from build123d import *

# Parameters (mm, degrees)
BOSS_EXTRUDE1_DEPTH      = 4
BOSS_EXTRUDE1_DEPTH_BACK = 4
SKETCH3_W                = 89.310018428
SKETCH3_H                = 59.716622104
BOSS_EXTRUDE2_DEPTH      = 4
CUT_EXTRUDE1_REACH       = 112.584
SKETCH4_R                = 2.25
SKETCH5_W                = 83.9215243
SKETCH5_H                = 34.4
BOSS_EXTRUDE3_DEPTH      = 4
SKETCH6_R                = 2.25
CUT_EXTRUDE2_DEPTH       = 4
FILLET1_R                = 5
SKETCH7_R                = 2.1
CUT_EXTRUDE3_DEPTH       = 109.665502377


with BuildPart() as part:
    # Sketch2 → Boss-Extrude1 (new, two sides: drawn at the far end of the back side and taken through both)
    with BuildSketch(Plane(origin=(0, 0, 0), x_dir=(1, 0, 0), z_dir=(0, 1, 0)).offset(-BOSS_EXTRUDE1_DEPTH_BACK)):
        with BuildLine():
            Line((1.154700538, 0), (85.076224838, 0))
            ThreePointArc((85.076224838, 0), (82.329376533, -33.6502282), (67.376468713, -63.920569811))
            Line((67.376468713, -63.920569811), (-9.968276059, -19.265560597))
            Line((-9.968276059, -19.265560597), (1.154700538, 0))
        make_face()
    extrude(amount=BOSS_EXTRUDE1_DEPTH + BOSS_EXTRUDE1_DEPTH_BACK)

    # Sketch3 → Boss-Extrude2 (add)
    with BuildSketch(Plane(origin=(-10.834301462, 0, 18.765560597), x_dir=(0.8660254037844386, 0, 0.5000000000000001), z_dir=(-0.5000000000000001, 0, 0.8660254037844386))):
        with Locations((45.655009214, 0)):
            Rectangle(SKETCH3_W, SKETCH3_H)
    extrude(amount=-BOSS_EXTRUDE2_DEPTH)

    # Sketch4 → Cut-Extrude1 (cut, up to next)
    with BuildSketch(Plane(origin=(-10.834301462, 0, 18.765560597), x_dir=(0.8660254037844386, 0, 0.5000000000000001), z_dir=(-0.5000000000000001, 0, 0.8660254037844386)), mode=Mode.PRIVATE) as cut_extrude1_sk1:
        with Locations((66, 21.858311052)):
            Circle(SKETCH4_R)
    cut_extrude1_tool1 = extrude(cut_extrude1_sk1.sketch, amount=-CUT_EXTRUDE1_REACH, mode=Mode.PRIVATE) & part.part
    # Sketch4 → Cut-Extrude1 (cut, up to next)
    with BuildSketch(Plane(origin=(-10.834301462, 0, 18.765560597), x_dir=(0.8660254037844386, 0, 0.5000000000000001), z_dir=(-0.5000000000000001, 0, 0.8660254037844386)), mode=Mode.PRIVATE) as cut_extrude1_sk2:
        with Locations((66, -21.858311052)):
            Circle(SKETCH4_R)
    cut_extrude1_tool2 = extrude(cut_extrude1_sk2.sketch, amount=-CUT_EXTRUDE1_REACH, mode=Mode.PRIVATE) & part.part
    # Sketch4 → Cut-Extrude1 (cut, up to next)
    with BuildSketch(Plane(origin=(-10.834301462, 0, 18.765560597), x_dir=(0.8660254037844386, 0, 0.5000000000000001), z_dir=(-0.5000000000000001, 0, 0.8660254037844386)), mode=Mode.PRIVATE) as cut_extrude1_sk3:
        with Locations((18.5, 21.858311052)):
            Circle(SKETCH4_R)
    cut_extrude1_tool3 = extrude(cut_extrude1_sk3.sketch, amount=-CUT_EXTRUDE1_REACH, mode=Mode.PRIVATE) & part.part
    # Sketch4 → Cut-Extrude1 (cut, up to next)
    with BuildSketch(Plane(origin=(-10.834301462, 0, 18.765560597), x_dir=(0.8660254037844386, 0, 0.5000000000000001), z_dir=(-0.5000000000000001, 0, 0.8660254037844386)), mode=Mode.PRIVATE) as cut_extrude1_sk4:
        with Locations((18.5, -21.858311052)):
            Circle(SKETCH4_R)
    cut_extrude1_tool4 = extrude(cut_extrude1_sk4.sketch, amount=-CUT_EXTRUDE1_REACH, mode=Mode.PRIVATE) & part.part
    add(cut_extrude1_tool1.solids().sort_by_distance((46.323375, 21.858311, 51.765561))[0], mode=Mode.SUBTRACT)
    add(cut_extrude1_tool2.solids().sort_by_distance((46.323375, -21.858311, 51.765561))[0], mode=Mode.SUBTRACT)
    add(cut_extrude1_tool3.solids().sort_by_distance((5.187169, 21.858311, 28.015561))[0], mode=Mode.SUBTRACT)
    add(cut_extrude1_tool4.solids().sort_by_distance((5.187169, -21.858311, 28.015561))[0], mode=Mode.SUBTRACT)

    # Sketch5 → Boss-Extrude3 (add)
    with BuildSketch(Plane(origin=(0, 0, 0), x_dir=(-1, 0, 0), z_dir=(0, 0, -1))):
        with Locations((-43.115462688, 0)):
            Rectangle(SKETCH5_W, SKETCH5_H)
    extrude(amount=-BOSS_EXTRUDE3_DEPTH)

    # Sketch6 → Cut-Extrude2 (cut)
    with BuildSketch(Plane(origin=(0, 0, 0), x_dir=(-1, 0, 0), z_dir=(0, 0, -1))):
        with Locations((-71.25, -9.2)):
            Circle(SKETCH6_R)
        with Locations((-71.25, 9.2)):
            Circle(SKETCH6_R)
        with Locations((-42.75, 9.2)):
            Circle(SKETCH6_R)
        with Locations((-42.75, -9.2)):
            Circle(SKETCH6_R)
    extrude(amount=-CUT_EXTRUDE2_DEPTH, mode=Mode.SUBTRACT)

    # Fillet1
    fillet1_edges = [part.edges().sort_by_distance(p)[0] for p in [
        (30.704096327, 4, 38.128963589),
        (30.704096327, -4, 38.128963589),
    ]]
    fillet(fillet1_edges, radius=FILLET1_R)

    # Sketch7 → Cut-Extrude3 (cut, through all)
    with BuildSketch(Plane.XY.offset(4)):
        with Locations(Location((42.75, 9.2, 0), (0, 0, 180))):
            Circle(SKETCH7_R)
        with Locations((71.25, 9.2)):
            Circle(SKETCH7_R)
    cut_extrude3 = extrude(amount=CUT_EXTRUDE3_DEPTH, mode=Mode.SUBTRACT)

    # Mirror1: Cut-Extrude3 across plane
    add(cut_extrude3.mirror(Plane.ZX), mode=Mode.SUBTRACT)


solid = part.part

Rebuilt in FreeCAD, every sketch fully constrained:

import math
import FreeCAD as App
import Part
import Sketcher
from FreeCAD import Vector
Q = App.Units.Quantity


def edges_at(feature, points):
    """Names of the edges that pass closest to the given points."""
    edges = feature.Shape.Edges
    near = lambda p: min(range(len(edges)), key=lambda i: edges[i].distToShape(Part.Vertex(*p))[0])
    return sorted({f"Edge{near(p) + 1}" for p in points})


def add_polygon(sketch, points):
    """Adds a closed chain of lines whose ends are joined by coincident constraints."""
    first, n = sketch.GeometryCount, len(points)
    for a, b in zip(points, points[1:] + points[:1]):
        sketch.addGeometry(Part.LineSegment(App.Vector(*a, 0), App.Vector(*b, 0)), False)
    for i in range(n):
        sketch.addConstraint(Sketcher.Constraint("Coincident", first + i, 2, first + (i + 1) % n, 1))

doc = App.newDocument("Part")
params = doc.addObject("Spreadsheet::Sheet", "Params")
for row, (alias, value) in enumerate([
    ("sketch1_radius", "90 mm"),
    ("pad1_length", "4 mm"),
    ("pad1_length2", "4 mm"),
    ("pad2_length", "4 mm"),
    ("sketch3_diameter", "4.5 mm"),
    ("sketch4_diameter", "4.5 mm"),
    ("sketch5_diameter", "4.5 mm"),
    ("sketch6_diameter", "4.5 mm"),
    ("sketch7_height", "34.4 mm"),
    ("pad3_length", "4 mm"),
    ("sketch8_diameter", "4.5 mm"),
    ("pocket5_length", "4 mm"),
    ("fillet_radius", "5 mm"),
    ("sketch9_diameter", "4.2 mm"),
], start=1):
    params.set(f"A{row}", alias)
    params.set(f"B{row}", "=" + value)
    params.setAlias(f"B{row}", alias)

body = doc.addObject("PartDesign::Body", "Body")

# Sketch on XZ plane
sketch1 = body.newObject("Sketcher::SketchObject", "Sketch")
sketch1.AttachmentSupport = (doc.getObject("XZ_Plane"), [""])
sketch1.MapMode = "FlatFace"
sketch1.addGeometry(Part.LineSegment(Vector(85, 0, 0), Vector(1, 0, 0)), False)
sketch1.addGeometry(Part.LineSegment(Vector(1, 0, 0), Vector(-10, 19, 0)), False)
sketch1.addGeometry(Part.LineSegment(Vector(-10, 19, 0), Vector(67, 64, 0)), False)
sketch1.addGeometry(Part.ArcOfCircle(Part.Circle(Vector(-4, 10, 0), Vector(0, 0, 1), 90), math.radians(-6), math.radians(37)), False)
sketch1.addConstraint(Sketcher.Constraint("Coincident", 0, 2, 1, 1))
sketch1.addConstraint(Sketcher.Constraint("Coincident", 1, 2, 2, 1))
sketch1.addConstraint(Sketcher.Constraint("Coincident", 2, 2, 3, 2))
sketch1.addConstraint(Sketcher.Constraint("Coincident", 3, 1, 0, 1))
sketch1.addConstraint(Sketcher.Constraint("Horizontal", 0))
sketch1.addConstraint(Sketcher.Constraint("PointOnObject", 0, 2, -1))
sketch1.addConstraint(Sketcher.Constraint("Perpendicular", 1, 2))
sketch1.addConstraint(Sketcher.Constraint("Radius", 3, Q("90 mm")))
sketch1.addConstraint(Sketcher.Constraint("Angle", 1, Q("120 deg")))
sketch1.addConstraint(Sketcher.Constraint("DistanceX", -1, 1, 0, 2, Q("1.154701 mm")))
sketch1.addConstraint(Sketcher.Constraint("DistanceX", 1, 2, 3, 1, Q("95.044501 mm")))
sketch1.addConstraint(Sketcher.Constraint("Distance", 2, Q("89.310018 mm")))
sketch1.addConstraint(Sketcher.Constraint("DistanceX", 0, 2, 0, 1, Q("83.921524 mm")))
sketch1.setExpression("Constraints[7]", "Params.sketch1_radius")
pad1 = body.newObject("PartDesign::Pad", "Pad")
pad1.Profile = sketch1
pad1.Type = "TwoLengths"
pad1.setExpression("Length", "Params.pad1_length")
pad1.setExpression("Length2", "Params.pad1_length2")
pad1.Reversed = True

# Sketch on an angled plane
sketch2 = body.newObject("Sketcher::SketchObject", "Sketch001")
sketch2.Placement = App.Placement(Vector(-10.834301, 0, 18.765561), App.Rotation(Vector(0.866025404, 0, 0.5), Vector(0, 1, 0), Vector(-0.5, 0, 0.866025404), "ZXY"))
add_polygon(sketch2, [(1, 30), (1, -30), (90, -30), (90, 30)])  # lines 0-3
sketch2.addConstraint(Sketcher.Constraint("Vertical", 0))
sketch2.addConstraint(Sketcher.Constraint("Horizontal", 1))
sketch2.addConstraint(Sketcher.Constraint("Vertical", 2))
sketch2.addConstraint(Sketcher.Constraint("Horizontal", 3))
sketch2.addConstraint(Sketcher.Constraint("DistanceX", -1, 1, 0, 2, Q("1 mm")))
sketch2.addConstraint(Sketcher.Constraint("DistanceX", 1, 1, 1, 2, Q("89.310018 mm")))
sketch2.addConstraint(Sketcher.Constraint("DistanceY", 0, 2, 0, 1, Q("59.716622 mm")))
sketch2.addConstraint(Sketcher.Constraint("DistanceY", 0, 2, -1, 1, Q("29.858311 mm")))
pad2 = body.newObject("PartDesign::Pad", "Pad001")
pad2.Profile = sketch2
pad2.setExpression("Length", "Params.pad2_length")
pad2.Reversed = True

# Sketch on an angled plane
sketch3 = body.newObject("Sketcher::SketchObject", "Sketch002")
sketch3.Placement = App.Placement(Vector(-10.834301, 0, 18.765561), App.Rotation(Vector(0.866025404, 0, 0.5), Vector(0, 1, 0), Vector(-0.5, 0, 0.866025404), "ZXY"))
sketch3.addGeometry(Part.Circle(Vector(66, 21.9, 0), Vector(0, 0, 1), 2.2), False)
sketch3.addConstraint(Sketcher.Constraint("Diameter", 0, Q("4.5 mm")))
sketch3.addConstraint(Sketcher.Constraint("DistanceX", -1, 1, 0, 3, Q("66 mm")))
sketch3.addConstraint(Sketcher.Constraint("DistanceY", -1, 1, 0, 3, Q("21.858311 mm")))
sketch3.setExpression("Constraints[0]", "Params.sketch3_diameter")
pocket1 = body.newObject("PartDesign::Pocket", "Pocket")
pocket1.Profile = sketch3
pocket1.Type = "UpToFirst"

# Sketch on an angled plane
sketch4 = body.newObject("Sketcher::SketchObject", "Sketch003")
sketch4.Placement = App.Placement(Vector(-10.834301, 0, 18.765561), App.Rotation(Vector(0.866025404, 0, 0.5), Vector(0, 1, 0), Vector(-0.5, 0, 0.866025404), "ZXY"))
sketch4.addGeometry(Part.Circle(Vector(66, -21.9, 0), Vector(0, 0, 1), 2.2), False)
sketch4.addConstraint(Sketcher.Constraint("Diameter", 0, Q("4.5 mm")))
sketch4.addConstraint(Sketcher.Constraint("DistanceX", -1, 1, 0, 3, Q("66 mm")))
sketch4.addConstraint(Sketcher.Constraint("DistanceY", 0, 3, -1, 1, Q("21.858311 mm")))
sketch4.setExpression("Constraints[0]", "Params.sketch4_diameter")
pocket2 = body.newObject("PartDesign::Pocket", "Pocket001")
pocket2.Profile = sketch4
pocket2.Type = "UpToFirst"

# Sketch on an angled plane
sketch5 = body.newObject("Sketcher::SketchObject", "Sketch004")
sketch5.Placement = App.Placement(Vector(-10.834301, 0, 18.765561), App.Rotation(Vector(0.866025404, 0, 0.5), Vector(0, 1, 0), Vector(-0.5, 0, 0.866025404), "ZXY"))
sketch5.addGeometry(Part.Circle(Vector(18.5, 21.9, 0), Vector(0, 0, 1), 2.2), False)
sketch5.addConstraint(Sketcher.Constraint("Diameter", 0, Q("4.5 mm")))
sketch5.addConstraint(Sketcher.Constraint("DistanceX", -1, 1, 0, 3, Q("18.5 mm")))
sketch5.addConstraint(Sketcher.Constraint("DistanceY", -1, 1, 0, 3, Q("21.858311 mm")))
sketch5.setExpression("Constraints[0]", "Params.sketch5_diameter")
pocket3 = body.newObject("PartDesign::Pocket", "Pocket002")
pocket3.Profile = sketch5
pocket3.Type = "UpToFirst"

# Sketch on an angled plane
sketch6 = body.newObject("Sketcher::SketchObject", "Sketch005")
sketch6.Placement = App.Placement(Vector(-10.834301, 0, 18.765561), App.Rotation(Vector(0.866025404, 0, 0.5), Vector(0, 1, 0), Vector(-0.5, 0, 0.866025404), "ZXY"))
sketch6.addGeometry(Part.Circle(Vector(18.5, -21.9, 0), Vector(0, 0, 1), 2.2), False)
sketch6.addConstraint(Sketcher.Constraint("Diameter", 0, Q("4.5 mm")))
sketch6.addConstraint(Sketcher.Constraint("DistanceX", -1, 1, 0, 3, Q("18.5 mm")))
sketch6.addConstraint(Sketcher.Constraint("DistanceY", 0, 3, -1, 1, Q("21.858311 mm")))
sketch6.setExpression("Constraints[0]", "Params.sketch6_diameter")
pocket4 = body.newObject("PartDesign::Pocket", "Pocket003")
pocket4.Profile = sketch6
pocket4.Type = "UpToFirst"

# Sketch on XY plane
sketch7 = body.newObject("Sketcher::SketchObject", "Sketch006")
sketch7.AttachmentSupport = (doc.getObject("XY_Plane"), [""])
sketch7.MapMode = "FlatFace"
add_polygon(sketch7, [(85, 17), (85, -17), (1, -17), (1, 17)])  # lines 0-3
sketch7.addConstraint(Sketcher.Constraint("Vertical", 0))
sketch7.addConstraint(Sketcher.Constraint("Horizontal", 1))
sketch7.addConstraint(Sketcher.Constraint("Vertical", 2))
sketch7.addConstraint(Sketcher.Constraint("Horizontal", 3))
sketch7.addConstraint(Sketcher.Constraint("DistanceY", 0, 2, 0, 1, Q("34.4 mm")))
sketch7.addConstraint(Sketcher.Constraint("DistanceY", 0, 2, -1, 1, Q("17.2 mm")))
sketch7.addConstraint(Sketcher.Constraint("DistanceX", -1, 1, 1, 2, Q("1.154701 mm")))
sketch7.addConstraint(Sketcher.Constraint("DistanceX", 1, 2, 1, 1, Q("83.921524 mm")))
sketch7.setExpression("Constraints[8]", "Params.sketch7_height")
pad3 = body.newObject("PartDesign::Pad", "Pad002")
pad3.Profile = sketch7
pad3.setExpression("Length", "Params.pad3_length")

# Sketch on XY plane
sketch8 = body.newObject("Sketcher::SketchObject", "Sketch007")
sketch8.AttachmentSupport = (doc.getObject("XY_Plane"), [""])
sketch8.MapMode = "FlatFace"
sketch8.addGeometry(Part.Circle(Vector(71.2, -9.2, 0), Vector(0, 0, 1), 2.2), False)
sketch8.addGeometry(Part.Circle(Vector(71.2, 9.2, 0), Vector(0, 0, 1), 2.2), False)
sketch8.addGeometry(Part.Circle(Vector(42.8, 9.2, 0), Vector(0, 0, 1), 2.2), False)
sketch8.addGeometry(Part.Circle(Vector(42.8, -9.2, 0), Vector(0, 0, 1), 2.2), False)
sketch8.addConstraint(Sketcher.Constraint("Equal", 0, 1))
sketch8.addConstraint(Sketcher.Constraint("Equal", 1, 2))
sketch8.addConstraint(Sketcher.Constraint("Equal", 2, 3))
sketch8.addConstraint(Sketcher.Constraint("Symmetric", 0, 3, 1, 3, -1))
sketch8.addConstraint(Sketcher.Constraint("Symmetric", 2, 3, 3, 3, -1))
sketch8.addConstraint(Sketcher.Constraint("Horizontal", 1, 3, 2, 3))
sketch8.addConstraint(Sketcher.Constraint("Diameter", 0, Q("4.5 mm")))
sketch8.addConstraint(Sketcher.Constraint("DistanceY", 0, 3, -1, 1, Q("9.2 mm")))
sketch8.addConstraint(Sketcher.Constraint("DistanceX", 2, 3, 1, 3, Q("28.5 mm")))
sketch8.addConstraint(Sketcher.Constraint("DistanceX", -1, 1, 0, 3, Q("71.25 mm")))
sketch8.setExpression("Constraints[6]", "Params.sketch8_diameter")
pocket5 = body.newObject("PartDesign::Pocket", "Pocket004")
pocket5.Profile = sketch8
pocket5.setExpression("Length", "Params.pocket5_length")
pocket5.Reversed = True
doc.recompute()

fillet = body.newObject("PartDesign::Fillet", "Fillet")
fillet.Base = (pocket5, edges_at(pocket5, [(30.704, 4, 38.129), (30.704, -4, 38.129)]))
fillet.setExpression("Radius", "Params.fillet_radius")

# Sketch on XY plane
sketch9 = body.newObject("Sketcher::SketchObject", "Sketch008")
sketch9.AttachmentSupport = (doc.getObject("XY_Plane"), [""])
sketch9.MapMode = "FlatFace"
sketch9.AttachmentOffset = App.Placement(Vector(0, 0, 4), App.Rotation())
sketch9.addGeometry(Part.Circle(Vector(42.8, 9.2, 0), Vector(0, 0, 1), 2.1), False)
sketch9.addGeometry(Part.Circle(Vector(71.2, 9.2, 0), Vector(0, 0, 1), 2.1), False)
sketch9.addConstraint(Sketcher.Constraint("Equal", 0, 1))
sketch9.addConstraint(Sketcher.Constraint("Horizontal", 0, 3, 1, 3))
sketch9.addConstraint(Sketcher.Constraint("Diameter", 0, Q("4.2 mm")))
sketch9.addConstraint(Sketcher.Constraint("DistanceY", -1, 1, 0, 3, Q("9.2 mm")))
sketch9.addConstraint(Sketcher.Constraint("DistanceX", 0, 3, 1, 3, Q("28.5 mm")))
sketch9.addConstraint(Sketcher.Constraint("DistanceX", -1, 1, 0, 3, Q("42.75 mm")))
sketch9.setExpression("Constraints[2]", "Params.sketch9_diameter")
pocket6 = body.newObject("PartDesign::Pocket", "Pocket005")
pocket6.Profile = sketch9
pocket6.Type = "ThroughAll"
pocket6.Reversed = True
doc.recompute()

mirrored = body.newObject("PartDesign::Mirrored", "Mirrored")
mirrored.Originals = [pocket6]
mirrored.MirrorPlane = (doc.getObject("XZ_Plane"), [""])
body.Tip = mirrored

doc.recompute()
